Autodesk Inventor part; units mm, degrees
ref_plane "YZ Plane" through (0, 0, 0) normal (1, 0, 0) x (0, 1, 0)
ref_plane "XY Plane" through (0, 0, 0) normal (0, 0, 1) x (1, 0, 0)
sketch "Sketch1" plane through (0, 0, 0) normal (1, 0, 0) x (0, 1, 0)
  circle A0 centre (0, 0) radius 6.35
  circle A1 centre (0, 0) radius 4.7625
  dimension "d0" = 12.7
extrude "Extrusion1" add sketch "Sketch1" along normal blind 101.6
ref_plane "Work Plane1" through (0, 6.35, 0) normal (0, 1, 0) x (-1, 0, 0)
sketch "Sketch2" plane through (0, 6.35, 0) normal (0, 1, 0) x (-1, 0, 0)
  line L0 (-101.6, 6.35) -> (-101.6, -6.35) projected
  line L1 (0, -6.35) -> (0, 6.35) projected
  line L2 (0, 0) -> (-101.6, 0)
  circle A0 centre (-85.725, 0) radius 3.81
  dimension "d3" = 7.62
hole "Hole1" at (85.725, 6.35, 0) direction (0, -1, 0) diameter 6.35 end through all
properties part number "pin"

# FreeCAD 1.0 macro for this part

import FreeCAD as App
import Part
import Sketcher

V = App.Vector
Q = App.Units.Quantity

doc = App.newDocument("Part")
params = doc.addObject("Spreadsheet::Sheet", "Params")
for row, (alias, value) in enumerate([
    ("sketch1_diameter", "0.5 in"),
    ("sketch1_diameter2", "0.375 in"),
    ("pad1_length", "4 in"),
    ("sketch2_diameter", "0.25 in"),
    ("hole_diameter", "0.25 in"),
], start=1):
    params.set(f"A{row}", alias)
    params.set(f"B{row}", "=" + value)
    params.setAlias(f"B{row}", alias)

body = doc.addObject("PartDesign::Body", "Body")

# Sketch on YZ plane
sketch1 = body.newObject("Sketcher::SketchObject", "Sketch")
sketch1.AttachmentSupport = (doc.getObject("YZ_Plane"), [""])
sketch1.MapMode = "FlatFace"
sketch1.addGeometry(Part.Circle(V(0, 0, 0), V(0, 0, 1), 6.3), False)
sketch1.addGeometry(Part.Circle(V(0, 0, 0), V(0, 0, 1), 4.8), False)
sketch1.addConstraint(Sketcher.Constraint("Coincident", 0, 3, -1, 1))
sketch1.addConstraint(Sketcher.Constraint("Coincident", 1, 3, -1, 1))
sketch1.addConstraint(Sketcher.Constraint("Diameter", 0, Q("0.5 in")))
sketch1.addConstraint(Sketcher.Constraint("Diameter", 1, Q("0.375 in")))
sketch1.setExpression("Constraints[2]", "Params.sketch1_diameter")
sketch1.setExpression("Constraints[3]", "Params.sketch1_diameter2")
pad1 = body.newObject("PartDesign::Pad", "Pad")
pad1.Profile = sketch1
pad1.setExpression("Length", "Params.pad1_length")

# Sketch on XZ plane
sketch2 = body.newObject("Sketcher::SketchObject", "Sketch001")
sketch2.AttachmentSupport = (doc.getObject("XZ_Plane"), [""])
sketch2.MapMode = "FlatFace"
sketch2.AttachmentOffset = App.Placement(V(0, 0, -0.25 * 25.4), App.Rotation())
sketch2.addGeometry(Part.Circle(V(85.7, 0, 0), V(0, 0, 1), 3.2), False)
sketch2.addConstraint(Sketcher.Constraint("PointOnObject", 0, 3, -1))
sketch2.addConstraint(Sketcher.Constraint("Diameter", 0, Q("0.25 in")))
sketch2.addConstraint(Sketcher.Constraint("DistanceX", -1, 1, 0, 3, Q("3.375 in")))
sketch2.setExpression("Constraints[1]", "Params.sketch2_diameter")
doc.recompute()
hole = body.newObject("PartDesign::Hole", "Hole")
hole.Profile = sketch2
hole.ThreadType = "None"
hole.setExpression("Diameter", "Params.hole_diameter")
hole.DepthType = "ThroughAll"
hole.Reversed = True

doc.recompute()
